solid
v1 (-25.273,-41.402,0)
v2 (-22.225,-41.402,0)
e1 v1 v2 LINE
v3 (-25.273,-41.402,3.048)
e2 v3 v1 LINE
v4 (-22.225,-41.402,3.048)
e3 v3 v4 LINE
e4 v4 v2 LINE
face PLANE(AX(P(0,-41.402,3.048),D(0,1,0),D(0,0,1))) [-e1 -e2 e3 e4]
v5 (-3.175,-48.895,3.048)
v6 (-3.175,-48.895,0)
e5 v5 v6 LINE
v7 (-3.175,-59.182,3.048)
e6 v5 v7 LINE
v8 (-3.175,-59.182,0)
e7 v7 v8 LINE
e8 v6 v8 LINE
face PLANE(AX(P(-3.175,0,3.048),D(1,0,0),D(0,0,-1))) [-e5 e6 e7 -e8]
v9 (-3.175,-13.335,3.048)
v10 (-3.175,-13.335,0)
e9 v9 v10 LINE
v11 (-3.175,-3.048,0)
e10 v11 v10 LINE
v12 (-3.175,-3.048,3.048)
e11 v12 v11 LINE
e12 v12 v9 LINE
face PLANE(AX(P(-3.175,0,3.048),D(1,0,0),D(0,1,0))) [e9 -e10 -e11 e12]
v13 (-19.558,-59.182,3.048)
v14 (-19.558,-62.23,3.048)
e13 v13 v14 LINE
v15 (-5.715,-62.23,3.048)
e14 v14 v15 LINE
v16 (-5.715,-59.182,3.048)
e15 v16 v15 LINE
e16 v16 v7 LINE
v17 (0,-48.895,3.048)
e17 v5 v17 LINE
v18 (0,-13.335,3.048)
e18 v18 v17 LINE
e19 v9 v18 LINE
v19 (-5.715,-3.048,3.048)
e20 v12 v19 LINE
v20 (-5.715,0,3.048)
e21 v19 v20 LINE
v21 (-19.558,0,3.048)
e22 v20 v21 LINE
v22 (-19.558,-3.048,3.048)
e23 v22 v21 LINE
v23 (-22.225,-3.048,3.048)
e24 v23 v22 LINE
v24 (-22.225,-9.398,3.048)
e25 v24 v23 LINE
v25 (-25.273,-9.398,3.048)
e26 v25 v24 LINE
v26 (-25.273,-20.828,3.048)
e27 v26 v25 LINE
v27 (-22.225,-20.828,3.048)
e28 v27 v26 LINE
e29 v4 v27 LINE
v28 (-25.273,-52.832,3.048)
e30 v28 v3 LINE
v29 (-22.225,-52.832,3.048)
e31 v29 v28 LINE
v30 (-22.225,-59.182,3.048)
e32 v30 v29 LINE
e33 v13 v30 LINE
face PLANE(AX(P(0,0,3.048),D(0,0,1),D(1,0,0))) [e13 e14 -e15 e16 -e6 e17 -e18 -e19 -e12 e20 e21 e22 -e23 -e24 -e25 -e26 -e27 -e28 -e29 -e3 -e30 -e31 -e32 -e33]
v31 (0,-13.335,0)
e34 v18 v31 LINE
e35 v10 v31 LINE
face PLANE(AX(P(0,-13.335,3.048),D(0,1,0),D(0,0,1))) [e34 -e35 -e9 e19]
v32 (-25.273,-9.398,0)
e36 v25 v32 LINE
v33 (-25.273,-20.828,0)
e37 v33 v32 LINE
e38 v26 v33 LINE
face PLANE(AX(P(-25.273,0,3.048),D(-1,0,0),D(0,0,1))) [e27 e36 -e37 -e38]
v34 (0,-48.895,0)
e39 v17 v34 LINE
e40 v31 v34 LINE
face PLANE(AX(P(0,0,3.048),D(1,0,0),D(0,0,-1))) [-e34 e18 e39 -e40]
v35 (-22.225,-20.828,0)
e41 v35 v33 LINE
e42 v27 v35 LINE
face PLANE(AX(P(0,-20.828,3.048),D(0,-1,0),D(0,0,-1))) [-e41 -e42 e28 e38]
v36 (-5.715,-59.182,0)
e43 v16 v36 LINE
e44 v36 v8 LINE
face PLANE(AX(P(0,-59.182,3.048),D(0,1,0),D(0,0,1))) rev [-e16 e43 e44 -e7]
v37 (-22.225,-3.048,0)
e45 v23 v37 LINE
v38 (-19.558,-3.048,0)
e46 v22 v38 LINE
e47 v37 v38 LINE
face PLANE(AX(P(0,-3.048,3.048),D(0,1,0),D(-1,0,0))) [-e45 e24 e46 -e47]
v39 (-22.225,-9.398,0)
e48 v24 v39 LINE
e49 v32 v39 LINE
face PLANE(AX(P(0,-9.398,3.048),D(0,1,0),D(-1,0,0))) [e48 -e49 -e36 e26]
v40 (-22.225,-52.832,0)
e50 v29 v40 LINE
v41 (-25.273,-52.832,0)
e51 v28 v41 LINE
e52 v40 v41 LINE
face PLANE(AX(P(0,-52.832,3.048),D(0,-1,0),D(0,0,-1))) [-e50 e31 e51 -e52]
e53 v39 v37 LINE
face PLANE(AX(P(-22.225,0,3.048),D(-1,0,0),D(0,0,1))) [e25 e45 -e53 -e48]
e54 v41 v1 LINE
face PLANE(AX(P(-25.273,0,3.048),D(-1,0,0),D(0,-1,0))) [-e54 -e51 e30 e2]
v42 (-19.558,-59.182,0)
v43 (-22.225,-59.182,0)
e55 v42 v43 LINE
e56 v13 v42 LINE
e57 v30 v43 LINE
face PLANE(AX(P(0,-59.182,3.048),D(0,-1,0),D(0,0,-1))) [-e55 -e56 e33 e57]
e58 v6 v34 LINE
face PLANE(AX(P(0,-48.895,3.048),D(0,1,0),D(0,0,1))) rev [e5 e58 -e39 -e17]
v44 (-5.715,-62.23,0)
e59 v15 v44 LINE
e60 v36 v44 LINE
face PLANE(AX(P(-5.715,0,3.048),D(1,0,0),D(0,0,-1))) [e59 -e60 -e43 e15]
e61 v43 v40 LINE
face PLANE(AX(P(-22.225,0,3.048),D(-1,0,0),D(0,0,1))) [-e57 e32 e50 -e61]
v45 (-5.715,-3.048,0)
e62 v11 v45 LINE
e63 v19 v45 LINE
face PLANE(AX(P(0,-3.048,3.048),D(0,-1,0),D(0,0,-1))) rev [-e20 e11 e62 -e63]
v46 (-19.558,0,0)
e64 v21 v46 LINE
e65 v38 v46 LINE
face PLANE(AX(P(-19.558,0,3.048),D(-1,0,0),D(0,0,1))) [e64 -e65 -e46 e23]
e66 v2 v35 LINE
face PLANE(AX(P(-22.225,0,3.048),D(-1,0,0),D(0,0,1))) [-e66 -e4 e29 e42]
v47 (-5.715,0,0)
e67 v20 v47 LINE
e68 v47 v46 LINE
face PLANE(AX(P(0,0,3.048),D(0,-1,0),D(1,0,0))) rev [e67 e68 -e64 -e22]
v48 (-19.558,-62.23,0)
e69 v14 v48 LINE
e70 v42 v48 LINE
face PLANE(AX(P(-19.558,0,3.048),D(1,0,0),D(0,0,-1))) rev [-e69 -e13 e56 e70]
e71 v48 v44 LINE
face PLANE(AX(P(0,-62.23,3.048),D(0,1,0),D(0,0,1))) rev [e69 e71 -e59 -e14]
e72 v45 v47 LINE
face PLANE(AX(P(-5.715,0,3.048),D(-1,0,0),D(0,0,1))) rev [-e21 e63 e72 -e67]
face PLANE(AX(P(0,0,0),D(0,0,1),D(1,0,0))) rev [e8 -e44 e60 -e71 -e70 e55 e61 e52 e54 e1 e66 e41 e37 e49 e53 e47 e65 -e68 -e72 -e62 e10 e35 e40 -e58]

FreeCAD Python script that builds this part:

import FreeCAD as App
import Part
import Sketcher
from FreeCAD import Vector
Q = App.Units.Quantity

doc = App.newDocument("Part")
body = doc.addObject("PartDesign::Body", "Body")

# Sketch on XY plane
sketch1 = body.newObject("Sketcher::SketchObject", "Sketch")
sketch1.AttachmentSupport = (doc.getObject("XY_Plane"), [""])
sketch1.MapMode = "FlatFace"
sketch1.addGeometry([
    Part.LineSegment(Vector(-19.6, -3, 0), Vector(-22.2, -3, 0)),  # 0
    Part.LineSegment(Vector(-22.2, -3, 0), Vector(-22.2, -9.4, 0)),  # 1
    Part.LineSegment(Vector(-22.2, -9.4, 0), Vector(-25.3, -9.4, 0)),  # 2
    Part.LineSegment(Vector(-25.3, -9.4, 0), Vector(-25.3, -20.8, 0)),  # 3
    Part.LineSegment(Vector(-25.3, -20.8, 0), Vector(-22.2, -20.8, 0)),  # 4
    Part.LineSegment(Vector(-22.2, -20.8, 0), Vector(-22.2, -41.4, 0)),  # 5
    Part.LineSegment(Vector(-22.2, -41.4, 0), Vector(-25.3, -41.4, 0)),  # 6
    Part.LineSegment(Vector(-25.3, -41.4, 0), Vector(-25.3, -52.8, 0)),  # 7
    Part.LineSegment(Vector(-25.3, -52.8, 0), Vector(-22.2, -52.8, 0)),  # 8
    Part.LineSegment(Vector(-22.2, -52.8, 0), Vector(-22.2, -59.2, 0)),  # 9
    Part.LineSegment(Vector(-22.2, -59.2, 0), Vector(-19.6, -59.2, 0)),  # 10
    Part.LineSegment(Vector(-19.6, -59.2, 0), Vector(-19.6, -62.2, 0)),  # 11
    Part.LineSegment(Vector(-19.6, -62.2, 0), Vector(-5.7, -62.2, 0)),  # 12
    Part.LineSegment(Vector(-5.7, -62.2, 0), Vector(-5.7, -59.2, 0)),  # 13
    Part.LineSegment(Vector(-5.7, -59.2, 0), Vector(-3.2, -59.2, 0)),  # 14
    Part.LineSegment(Vector(-3.2, -59.2, 0), Vector(-3.2, -48.9, 0)),  # 15
    Part.LineSegment(Vector(-3.2, -48.9, 0), Vector(0, -48.9, 0)),  # 16
    Part.LineSegment(Vector(0, -48.9, 0), Vector(0, -13.3, 0)),  # 17
    Part.LineSegment(Vector(0, -13.3, 0), Vector(-3.2, -13.3, 0)),  # 18
    Part.LineSegment(Vector(-3.2, -13.3, 0), Vector(-3.2, -3, 0)),  # 19
    Part.LineSegment(Vector(-3.2, -3, 0), Vector(-5.7, -3, 0)),  # 20
    Part.LineSegment(Vector(-5.7, -3, 0), Vector(-5.7, 0, 0)),  # 21
    Part.LineSegment(Vector(-5.7, 0, 0), Vector(-19.6, 0, 0)),  # 22
    Part.LineSegment(Vector(-19.6, 0, 0), Vector(-19.6, -3, 0)),  # 23
], False)
sketch1.addConstraint([
    Sketcher.Constraint("Coincident", 0, 2, 1, 1),
    Sketcher.Constraint("Coincident", 1, 2, 2, 1),
    Sketcher.Constraint("Coincident", 2, 2, 3, 1),
    Sketcher.Constraint("Coincident", 3, 2, 4, 1),
    Sketcher.Constraint("Coincident", 4, 2, 5, 1),
    Sketcher.Constraint("Coincident", 5, 2, 6, 1),
    Sketcher.Constraint("Coincident", 6, 2, 7, 1),
    Sketcher.Constraint("Coincident", 7, 2, 8, 1),
    Sketcher.Constraint("Coincident", 8, 2, 9, 1),
    Sketcher.Constraint("Coincident", 9, 2, 10, 1),
    Sketcher.Constraint("Coincident", 10, 2, 11, 1),
    Sketcher.Constraint("Coincident", 11, 2, 12, 1),
    Sketcher.Constraint("Coincident", 12, 2, 13, 1),
    Sketcher.Constraint("Coincident", 13, 2, 14, 1),
    Sketcher.Constraint("Coincident", 14, 2, 15, 1),
    Sketcher.Constraint("Coincident", 15, 2, 16, 1),
    Sketcher.Constraint("Coincident", 16, 2, 17, 1),
    Sketcher.Constraint("Coincident", 17, 2, 18, 1),
    Sketcher.Constraint("Coincident", 18, 2, 19, 1),
    Sketcher.Constraint("Coincident", 19, 2, 20, 1),
    Sketcher.Constraint("Coincident", 20, 2, 21, 1),
    Sketcher.Constraint("Coincident", 21, 2, 22, 1),
    Sketcher.Constraint("Coincident", 22, 2, 23, 1),
    Sketcher.Constraint("Coincident", 23, 2, 0, 1),
    Sketcher.Constraint("Horizontal", 0),
    Sketcher.Constraint("Vertical", 1),
    Sketcher.Constraint("Horizontal", 2),
    Sketcher.Constraint("Vertical", 3),
    Sketcher.Constraint("Horizontal", 4),
    Sketcher.Constraint("Vertical", 5),
    Sketcher.Constraint("Horizontal", 6),
    Sketcher.Constraint("Vertical", 7),
    Sketcher.Constraint("Horizontal", 8),
    Sketcher.Constraint("Vertical", 9),
    Sketcher.Constraint("Horizontal", 10),
    Sketcher.Constraint("Vertical", 11),
    Sketcher.Constraint("Horizontal", 12),
    Sketcher.Constraint("Vertical", 13),
    Sketcher.Constraint("Horizontal", 14),
    Sketcher.Constraint("Vertical", 15),
    Sketcher.Constraint("Horizontal", 16),
    Sketcher.Constraint("Vertical", 17),
    Sketcher.Constraint("Horizontal", 18),
    Sketcher.Constraint("Vertical", 19),
    Sketcher.Constraint("Horizontal", 20),
    Sketcher.Constraint("Vertical", 21),
    Sketcher.Constraint("Horizontal", 22),
    Sketcher.Constraint("Vertical", 23),
    Sketcher.Constraint("PointOnObject", 16, 2, -2),
    Sketcher.Constraint("PointOnObject", 21, 2, -1),
    Sketcher.Constraint("Horizontal", 10, 2, 13, 2),
    Sketcher.Constraint("Horizontal", 0, 2, 19, 2),
    Sketcher.Constraint("Vertical", 1, 2, 4, 2),
    Sketcher.Constraint("Vertical", 3, 2, 6, 2),
    Sketcher.Constraint("Vertical", 5, 2, 8, 2),
    Sketcher.Constraint("Vertical", 15, 2, 18, 2),
    Sketcher.Constraint("Vertical", 13, 2, 20, 2),
    Sketcher.Constraint("Vertical", 11, 2, 22, 2),
    Sketcher.Constraint("Equal", 3, 7),
    Sketcher.Constraint("Equal", 1, 9),
    Sketcher.Constraint("Equal", 8, 11),
    Sketcher.Constraint("Equal", 15, 19),
    Sketcher.Constraint("Equal", 13, 21),
    Sketcher.Constraint("DistanceX", 14, 1, 14, 2, Q("0.1 in")),
    Sketcher.Constraint("DistanceY", 17, 1, 17, 2, Q("1.4 in")),
    Sketcher.Constraint("DistanceX", 2, 2, 2, 1, Q("0.12 in")),
    Sketcher.Constraint("DistanceY", 1, 2, 1, 1, Q("0.25 in")),
    Sketcher.Constraint("DistanceY", 3, 2, 3, 1, Q("0.45 in")),
    Sketcher.Constraint("DistanceY", 5, 2, 5, 1, Q("0.81 in")),
    Sketcher.Constraint("DistanceX", 0, 2, 0, 1, Q("0.105 in")),
    Sketcher.Constraint("DistanceX", 12, 1, 12, 2, Q("0.545 in")),
    Sketcher.Constraint("DistanceX", 16, 1, 16, 2, Q("0.125 in")),
])
pad1 = body.newObject("PartDesign::Pad", "Pad")
pad1.Profile = sketch1
pad1.Length = Q("0.12 in")

doc.recompute()
